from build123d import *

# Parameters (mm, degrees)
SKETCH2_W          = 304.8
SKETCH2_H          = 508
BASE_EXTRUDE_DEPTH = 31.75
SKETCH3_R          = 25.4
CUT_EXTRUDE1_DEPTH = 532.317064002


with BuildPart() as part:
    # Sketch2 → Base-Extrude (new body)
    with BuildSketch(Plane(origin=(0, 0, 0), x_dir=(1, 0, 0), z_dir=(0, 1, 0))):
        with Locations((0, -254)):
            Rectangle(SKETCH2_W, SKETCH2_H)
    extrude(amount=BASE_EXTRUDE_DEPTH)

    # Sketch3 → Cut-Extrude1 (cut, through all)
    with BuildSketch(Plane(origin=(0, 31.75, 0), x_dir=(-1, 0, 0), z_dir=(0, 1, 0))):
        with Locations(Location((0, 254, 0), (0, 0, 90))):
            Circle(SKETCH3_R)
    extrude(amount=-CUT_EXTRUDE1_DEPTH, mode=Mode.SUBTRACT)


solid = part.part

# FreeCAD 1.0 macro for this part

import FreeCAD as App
import Part
import Sketcher
from FreeCAD import Vector
Q = App.Units.Quantity

doc = App.newDocument("Part")
body = doc.addObject("PartDesign::Body", "Body")

# Sketch on XZ plane
sketch1 = doc.addObject("Sketcher::SketchObject", "Sketch")
body.addObject(sketch1)
sketch1.AttachmentSupport = (doc.XZ_Plane, [""])
sketch1.MapMode = "FlatFace"
sketch1.addGeometry([
    Part.LineSegment(Vector(-152.4, 0, 0), Vector(-152.4, 508, 0)),
    Part.LineSegment(Vector(-152.4, 508, 0), Vector(152.4, 508, 0)),
    Part.LineSegment(Vector(152.4, 508, 0), Vector(152.4, 0, 0)),
    Part.LineSegment(Vector(152.4, 0, 0), Vector(-152.4, 0, 0)),
], False)
sketch1.addConstraint([
    Sketcher.Constraint("Coincident", 0, 2, 1, 1),
    Sketcher.Constraint("Coincident", 1, 2, 2, 1),
    Sketcher.Constraint("Coincident", 2, 2, 3, 1),
    Sketcher.Constraint("Coincident", 3, 2, 0, 1),
    Sketcher.Constraint("Vertical", 0),
    Sketcher.Constraint("Horizontal", 1),
    Sketcher.Constraint("Vertical", 2),
    Sketcher.Constraint("Horizontal", 3),
    Sketcher.Constraint("Symmetric", 2, 2, 3, 2, -1, 1),
    Sketcher.Constraint("DistanceX", 1, 1, 1, 2, Q("12 in")),
    Sketcher.Constraint("DistanceY", 0, 1, 0, 2, Q("20 in")),
])
pad1 = doc.addObject("PartDesign::Pad", "Pad")
body.addObject(pad1)
pad1.Profile = sketch1
pad1.Length = Q("1.25 in")
pad1.Reversed = True

# Sketch on XZ plane
sketch2 = doc.addObject("Sketcher::SketchObject", "Sketch001")
body.addObject(sketch2)
sketch2.AttachmentSupport = (doc.XZ_Plane, [""])
sketch2.MapMode = "FlatFace"
sketch2.AttachmentOffset = App.Placement(Vector(0, 0, -1.25 * 25.4), App.Rotation())
sketch2.addGeometry(Part.Circle(Vector(0, 254, 0), Vector(0, 0, 1), 25.4), False)
sketch2.addConstraint([
    Sketcher.Constraint("PointOnObject", 0, 3, -2),
    Sketcher.Constraint("Diameter", 0, Q("2 in")),
    Sketcher.Constraint("DistanceY", -1, 1, 0, 3, Q("10 in")),
])
pocket1 = doc.addObject("PartDesign::Pocket", "Pocket")
body.addObject(pocket1)
pocket1.Profile = sketch2
pocket1.Type = "ThroughAll"
pocket1.Reversed = True

doc.recompute()
